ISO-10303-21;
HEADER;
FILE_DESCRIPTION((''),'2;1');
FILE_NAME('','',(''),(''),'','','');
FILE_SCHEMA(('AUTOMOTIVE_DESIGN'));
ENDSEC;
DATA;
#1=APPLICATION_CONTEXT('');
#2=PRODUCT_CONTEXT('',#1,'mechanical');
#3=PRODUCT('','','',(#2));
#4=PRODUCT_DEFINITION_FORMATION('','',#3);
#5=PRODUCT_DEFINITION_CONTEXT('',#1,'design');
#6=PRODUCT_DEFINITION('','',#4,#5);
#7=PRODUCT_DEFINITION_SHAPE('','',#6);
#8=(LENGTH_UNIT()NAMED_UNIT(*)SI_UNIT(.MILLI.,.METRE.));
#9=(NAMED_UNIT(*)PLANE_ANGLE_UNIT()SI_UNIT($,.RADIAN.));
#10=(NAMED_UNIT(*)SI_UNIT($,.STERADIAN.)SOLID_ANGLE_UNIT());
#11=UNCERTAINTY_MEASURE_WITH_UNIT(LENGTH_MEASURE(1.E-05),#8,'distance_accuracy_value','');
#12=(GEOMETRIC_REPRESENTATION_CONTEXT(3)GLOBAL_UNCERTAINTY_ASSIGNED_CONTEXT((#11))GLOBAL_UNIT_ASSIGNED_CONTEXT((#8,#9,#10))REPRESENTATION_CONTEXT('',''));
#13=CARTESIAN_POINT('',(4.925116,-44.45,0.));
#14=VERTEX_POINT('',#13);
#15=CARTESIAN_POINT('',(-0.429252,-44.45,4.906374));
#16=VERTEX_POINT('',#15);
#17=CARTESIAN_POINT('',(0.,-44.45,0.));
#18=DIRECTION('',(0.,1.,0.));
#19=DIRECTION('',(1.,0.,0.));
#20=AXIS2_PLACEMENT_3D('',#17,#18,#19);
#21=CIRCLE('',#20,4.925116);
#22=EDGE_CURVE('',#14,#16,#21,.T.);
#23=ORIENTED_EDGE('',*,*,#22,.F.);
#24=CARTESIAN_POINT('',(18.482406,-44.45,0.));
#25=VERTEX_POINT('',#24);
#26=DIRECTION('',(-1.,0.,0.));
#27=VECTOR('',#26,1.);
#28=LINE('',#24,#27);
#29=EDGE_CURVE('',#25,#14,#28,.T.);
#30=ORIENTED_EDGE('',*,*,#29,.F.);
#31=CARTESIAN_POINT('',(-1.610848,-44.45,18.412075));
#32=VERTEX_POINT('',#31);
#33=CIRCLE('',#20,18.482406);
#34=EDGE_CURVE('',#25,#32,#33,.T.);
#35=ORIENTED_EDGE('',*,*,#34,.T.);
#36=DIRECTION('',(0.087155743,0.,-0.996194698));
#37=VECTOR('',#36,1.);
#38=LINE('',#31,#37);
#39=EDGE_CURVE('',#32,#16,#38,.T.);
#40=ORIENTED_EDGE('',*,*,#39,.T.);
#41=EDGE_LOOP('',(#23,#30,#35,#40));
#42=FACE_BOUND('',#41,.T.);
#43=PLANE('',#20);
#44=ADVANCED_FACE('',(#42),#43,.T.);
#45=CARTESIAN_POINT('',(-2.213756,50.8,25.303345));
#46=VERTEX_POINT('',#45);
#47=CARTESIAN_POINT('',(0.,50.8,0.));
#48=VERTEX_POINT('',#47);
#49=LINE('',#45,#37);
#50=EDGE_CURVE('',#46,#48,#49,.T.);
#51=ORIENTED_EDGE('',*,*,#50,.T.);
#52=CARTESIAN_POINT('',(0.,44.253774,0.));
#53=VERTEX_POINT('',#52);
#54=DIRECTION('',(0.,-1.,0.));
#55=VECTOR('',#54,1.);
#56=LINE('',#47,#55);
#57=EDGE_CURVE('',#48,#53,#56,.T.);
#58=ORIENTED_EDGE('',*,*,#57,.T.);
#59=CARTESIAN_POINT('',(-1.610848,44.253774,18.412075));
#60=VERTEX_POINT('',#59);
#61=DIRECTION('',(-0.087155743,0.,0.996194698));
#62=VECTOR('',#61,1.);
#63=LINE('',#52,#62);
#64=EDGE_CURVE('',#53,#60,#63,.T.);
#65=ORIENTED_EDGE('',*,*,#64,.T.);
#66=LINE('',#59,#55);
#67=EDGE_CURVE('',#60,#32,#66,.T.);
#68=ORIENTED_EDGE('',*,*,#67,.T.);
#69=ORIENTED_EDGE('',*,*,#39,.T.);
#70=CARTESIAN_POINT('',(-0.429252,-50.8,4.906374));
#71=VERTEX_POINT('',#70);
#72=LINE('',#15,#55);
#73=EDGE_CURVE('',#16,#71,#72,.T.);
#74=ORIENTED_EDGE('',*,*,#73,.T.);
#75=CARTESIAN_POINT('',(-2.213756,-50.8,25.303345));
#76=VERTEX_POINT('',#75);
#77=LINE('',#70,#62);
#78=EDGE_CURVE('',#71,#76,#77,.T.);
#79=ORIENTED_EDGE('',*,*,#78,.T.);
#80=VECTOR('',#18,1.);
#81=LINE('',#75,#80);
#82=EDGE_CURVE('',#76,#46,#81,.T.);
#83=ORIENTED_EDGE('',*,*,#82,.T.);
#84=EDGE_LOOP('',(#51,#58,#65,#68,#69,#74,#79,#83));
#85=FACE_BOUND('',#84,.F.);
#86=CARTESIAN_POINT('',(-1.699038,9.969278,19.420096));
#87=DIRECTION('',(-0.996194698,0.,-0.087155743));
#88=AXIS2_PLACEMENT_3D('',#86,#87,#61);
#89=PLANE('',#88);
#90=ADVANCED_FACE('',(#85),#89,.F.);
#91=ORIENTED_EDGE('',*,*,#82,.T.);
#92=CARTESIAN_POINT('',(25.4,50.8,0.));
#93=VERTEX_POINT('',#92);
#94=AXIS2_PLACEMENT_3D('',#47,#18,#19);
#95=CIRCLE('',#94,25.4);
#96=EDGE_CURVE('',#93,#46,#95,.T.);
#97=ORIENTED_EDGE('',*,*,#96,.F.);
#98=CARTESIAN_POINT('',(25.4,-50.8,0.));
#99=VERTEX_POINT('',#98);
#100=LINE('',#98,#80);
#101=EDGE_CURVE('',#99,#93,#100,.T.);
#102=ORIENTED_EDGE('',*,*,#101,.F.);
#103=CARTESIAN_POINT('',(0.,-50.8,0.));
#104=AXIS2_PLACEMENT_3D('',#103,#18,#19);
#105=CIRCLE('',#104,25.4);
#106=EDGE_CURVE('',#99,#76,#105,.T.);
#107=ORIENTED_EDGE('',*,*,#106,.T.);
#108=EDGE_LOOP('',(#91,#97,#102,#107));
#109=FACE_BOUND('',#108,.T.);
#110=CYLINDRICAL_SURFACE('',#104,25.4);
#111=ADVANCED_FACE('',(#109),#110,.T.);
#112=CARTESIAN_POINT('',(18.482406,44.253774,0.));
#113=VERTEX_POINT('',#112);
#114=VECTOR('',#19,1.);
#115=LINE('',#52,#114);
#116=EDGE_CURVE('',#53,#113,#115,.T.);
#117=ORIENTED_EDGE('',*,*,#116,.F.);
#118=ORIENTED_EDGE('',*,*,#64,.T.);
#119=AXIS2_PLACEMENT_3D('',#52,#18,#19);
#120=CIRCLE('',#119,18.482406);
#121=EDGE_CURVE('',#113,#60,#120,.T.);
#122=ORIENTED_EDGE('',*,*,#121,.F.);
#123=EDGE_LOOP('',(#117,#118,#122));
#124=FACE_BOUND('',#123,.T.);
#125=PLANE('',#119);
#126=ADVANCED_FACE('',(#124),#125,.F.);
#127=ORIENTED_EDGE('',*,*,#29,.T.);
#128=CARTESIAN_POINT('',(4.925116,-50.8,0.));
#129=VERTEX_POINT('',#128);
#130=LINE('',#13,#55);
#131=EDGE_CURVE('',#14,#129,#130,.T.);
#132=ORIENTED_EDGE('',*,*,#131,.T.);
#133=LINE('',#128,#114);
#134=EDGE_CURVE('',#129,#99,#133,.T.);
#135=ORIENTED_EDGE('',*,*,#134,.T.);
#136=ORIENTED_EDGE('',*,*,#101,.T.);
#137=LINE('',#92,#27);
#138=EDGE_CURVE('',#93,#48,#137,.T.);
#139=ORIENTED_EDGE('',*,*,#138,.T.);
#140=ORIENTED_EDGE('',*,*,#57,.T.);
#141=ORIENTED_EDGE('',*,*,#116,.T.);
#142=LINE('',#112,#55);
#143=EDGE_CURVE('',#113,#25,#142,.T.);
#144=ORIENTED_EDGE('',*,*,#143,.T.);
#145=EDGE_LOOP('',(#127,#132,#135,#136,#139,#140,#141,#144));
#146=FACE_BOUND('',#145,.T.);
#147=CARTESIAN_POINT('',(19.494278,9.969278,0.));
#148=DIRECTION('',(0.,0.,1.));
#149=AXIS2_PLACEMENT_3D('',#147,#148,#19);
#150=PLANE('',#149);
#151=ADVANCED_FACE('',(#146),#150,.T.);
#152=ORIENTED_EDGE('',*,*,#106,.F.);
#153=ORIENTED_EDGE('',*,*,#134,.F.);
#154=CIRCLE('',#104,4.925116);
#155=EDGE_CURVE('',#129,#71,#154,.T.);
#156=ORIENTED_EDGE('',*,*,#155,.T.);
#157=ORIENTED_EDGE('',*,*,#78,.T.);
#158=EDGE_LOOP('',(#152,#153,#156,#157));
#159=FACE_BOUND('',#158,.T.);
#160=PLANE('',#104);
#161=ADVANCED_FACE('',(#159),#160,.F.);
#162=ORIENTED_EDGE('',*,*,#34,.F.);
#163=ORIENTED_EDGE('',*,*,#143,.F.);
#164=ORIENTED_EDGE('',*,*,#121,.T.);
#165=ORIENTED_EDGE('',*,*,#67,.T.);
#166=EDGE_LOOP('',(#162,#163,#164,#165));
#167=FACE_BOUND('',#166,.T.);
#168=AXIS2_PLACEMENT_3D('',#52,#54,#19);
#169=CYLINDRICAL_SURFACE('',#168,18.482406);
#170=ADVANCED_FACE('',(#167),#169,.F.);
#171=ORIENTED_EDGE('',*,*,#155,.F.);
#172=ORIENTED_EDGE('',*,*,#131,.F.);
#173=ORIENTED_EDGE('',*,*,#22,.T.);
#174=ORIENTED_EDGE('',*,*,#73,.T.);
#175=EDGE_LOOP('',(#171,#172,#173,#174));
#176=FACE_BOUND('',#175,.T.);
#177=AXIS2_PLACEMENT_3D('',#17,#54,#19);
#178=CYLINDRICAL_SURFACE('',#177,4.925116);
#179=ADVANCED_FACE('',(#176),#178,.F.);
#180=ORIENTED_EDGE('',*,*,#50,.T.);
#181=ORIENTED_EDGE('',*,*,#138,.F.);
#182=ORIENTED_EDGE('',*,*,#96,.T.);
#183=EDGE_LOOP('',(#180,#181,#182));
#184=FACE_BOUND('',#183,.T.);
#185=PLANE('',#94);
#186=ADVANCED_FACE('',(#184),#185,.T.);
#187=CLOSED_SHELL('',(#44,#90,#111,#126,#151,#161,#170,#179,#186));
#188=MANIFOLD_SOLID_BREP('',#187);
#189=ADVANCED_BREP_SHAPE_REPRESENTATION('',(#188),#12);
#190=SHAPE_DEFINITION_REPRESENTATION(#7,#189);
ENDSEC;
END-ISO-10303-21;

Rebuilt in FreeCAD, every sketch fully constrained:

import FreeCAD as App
import Part
import Sketcher
from FreeCAD import Vector
Q = App.Units.Quantity

doc = App.newDocument("Part")
body = doc.addObject("PartDesign::Body", "Body")

sketch1 = body.newObject("Sketcher::SketchObject", "Sketch")
sketch1.AttachmentSupport = (doc.getObject("XY_Plane"), [""])
sketch1.MapMode = "FlatFace"
sketch1.addGeometry(Part.LineSegment(Vector(25, 51, 0), Vector(0, 51, 0)), False)
sketch1.addGeometry(Part.LineSegment(Vector(0, 51, 0), Vector(0, 44, 0)), False)
sketch1.addGeometry(Part.LineSegment(Vector(0, 44, 0), Vector(18, 44, 0)), False)
sketch1.addGeometry(Part.LineSegment(Vector(18, 44, 0), Vector(18, -44, 0)), False)
sketch1.addGeometry(Part.LineSegment(Vector(18, -44, 0), Vector(5, -44, 0)), False)
sketch1.addGeometry(Part.LineSegment(Vector(5, -44, 0), Vector(5, -51, 0)), False)
sketch1.addGeometry(Part.LineSegment(Vector(5, -51, 0), Vector(25, -51, 0)), False)
sketch1.addGeometry(Part.LineSegment(Vector(25, -51, 0), Vector(25, 51, 0)), False)
sketch1.addConstraint(Sketcher.Constraint("Coincident", 0, 2, 1, 1))
sketch1.addConstraint(Sketcher.Constraint("Coincident", 1, 2, 2, 1))
sketch1.addConstraint(Sketcher.Constraint("Coincident", 2, 2, 3, 1))
sketch1.addConstraint(Sketcher.Constraint("Coincident", 3, 2, 4, 1))
sketch1.addConstraint(Sketcher.Constraint("Coincident", 4, 2, 5, 1))
sketch1.addConstraint(Sketcher.Constraint("Coincident", 5, 2, 6, 1))
sketch1.addConstraint(Sketcher.Constraint("Coincident", 6, 2, 7, 1))
sketch1.addConstraint(Sketcher.Constraint("Coincident", 7, 2, 0, 1))
sketch1.addConstraint(Sketcher.Constraint("Horizontal", 0))
sketch1.addConstraint(Sketcher.Constraint("Vertical", 1))
sketch1.addConstraint(Sketcher.Constraint("Horizontal", 2))
sketch1.addConstraint(Sketcher.Constraint("Vertical", 3))
sketch1.addConstraint(Sketcher.Constraint("Horizontal", 4))
sketch1.addConstraint(Sketcher.Constraint("Vertical", 5))
sketch1.addConstraint(Sketcher.Constraint("Horizontal", 6))
sketch1.addConstraint(Sketcher.Constraint("Vertical", 7))
sketch1.addConstraint(Sketcher.Constraint("PointOnObject", 0, 2, -2))
sketch1.addConstraint(Sketcher.Constraint("DistanceX", 0, 2, 0, 1, Q("1 in")))
sketch1.addConstraint(Sketcher.Constraint("DistanceY", 7, 1, 7, 2, Q("4 in")))
sketch1.addConstraint(Sketcher.Constraint("DistanceY", -1, 1, 0, 2, Q("2 in")))
sketch1.addConstraint(Sketcher.Constraint("DistanceY", 5, 2, 5, 1, Q("0.25 in")))
sketch1.addConstraint(Sketcher.Constraint("DistanceX", 4, 2, 4, 1, 13.55729))
sketch1.addConstraint(Sketcher.Constraint("DistanceX", 2, 1, 2, 2, 18.482406))
sketch1.addConstraint(Sketcher.Constraint("DistanceY", 1, 2, 1, 1, 6.546226))
revolution = body.newObject("PartDesign::Revolution", "Revolution")
revolution.Profile = sketch1
revolution.ReferenceAxis = (sketch1, ["V_Axis"])
revolution.Angle = 265

doc.recompute()
